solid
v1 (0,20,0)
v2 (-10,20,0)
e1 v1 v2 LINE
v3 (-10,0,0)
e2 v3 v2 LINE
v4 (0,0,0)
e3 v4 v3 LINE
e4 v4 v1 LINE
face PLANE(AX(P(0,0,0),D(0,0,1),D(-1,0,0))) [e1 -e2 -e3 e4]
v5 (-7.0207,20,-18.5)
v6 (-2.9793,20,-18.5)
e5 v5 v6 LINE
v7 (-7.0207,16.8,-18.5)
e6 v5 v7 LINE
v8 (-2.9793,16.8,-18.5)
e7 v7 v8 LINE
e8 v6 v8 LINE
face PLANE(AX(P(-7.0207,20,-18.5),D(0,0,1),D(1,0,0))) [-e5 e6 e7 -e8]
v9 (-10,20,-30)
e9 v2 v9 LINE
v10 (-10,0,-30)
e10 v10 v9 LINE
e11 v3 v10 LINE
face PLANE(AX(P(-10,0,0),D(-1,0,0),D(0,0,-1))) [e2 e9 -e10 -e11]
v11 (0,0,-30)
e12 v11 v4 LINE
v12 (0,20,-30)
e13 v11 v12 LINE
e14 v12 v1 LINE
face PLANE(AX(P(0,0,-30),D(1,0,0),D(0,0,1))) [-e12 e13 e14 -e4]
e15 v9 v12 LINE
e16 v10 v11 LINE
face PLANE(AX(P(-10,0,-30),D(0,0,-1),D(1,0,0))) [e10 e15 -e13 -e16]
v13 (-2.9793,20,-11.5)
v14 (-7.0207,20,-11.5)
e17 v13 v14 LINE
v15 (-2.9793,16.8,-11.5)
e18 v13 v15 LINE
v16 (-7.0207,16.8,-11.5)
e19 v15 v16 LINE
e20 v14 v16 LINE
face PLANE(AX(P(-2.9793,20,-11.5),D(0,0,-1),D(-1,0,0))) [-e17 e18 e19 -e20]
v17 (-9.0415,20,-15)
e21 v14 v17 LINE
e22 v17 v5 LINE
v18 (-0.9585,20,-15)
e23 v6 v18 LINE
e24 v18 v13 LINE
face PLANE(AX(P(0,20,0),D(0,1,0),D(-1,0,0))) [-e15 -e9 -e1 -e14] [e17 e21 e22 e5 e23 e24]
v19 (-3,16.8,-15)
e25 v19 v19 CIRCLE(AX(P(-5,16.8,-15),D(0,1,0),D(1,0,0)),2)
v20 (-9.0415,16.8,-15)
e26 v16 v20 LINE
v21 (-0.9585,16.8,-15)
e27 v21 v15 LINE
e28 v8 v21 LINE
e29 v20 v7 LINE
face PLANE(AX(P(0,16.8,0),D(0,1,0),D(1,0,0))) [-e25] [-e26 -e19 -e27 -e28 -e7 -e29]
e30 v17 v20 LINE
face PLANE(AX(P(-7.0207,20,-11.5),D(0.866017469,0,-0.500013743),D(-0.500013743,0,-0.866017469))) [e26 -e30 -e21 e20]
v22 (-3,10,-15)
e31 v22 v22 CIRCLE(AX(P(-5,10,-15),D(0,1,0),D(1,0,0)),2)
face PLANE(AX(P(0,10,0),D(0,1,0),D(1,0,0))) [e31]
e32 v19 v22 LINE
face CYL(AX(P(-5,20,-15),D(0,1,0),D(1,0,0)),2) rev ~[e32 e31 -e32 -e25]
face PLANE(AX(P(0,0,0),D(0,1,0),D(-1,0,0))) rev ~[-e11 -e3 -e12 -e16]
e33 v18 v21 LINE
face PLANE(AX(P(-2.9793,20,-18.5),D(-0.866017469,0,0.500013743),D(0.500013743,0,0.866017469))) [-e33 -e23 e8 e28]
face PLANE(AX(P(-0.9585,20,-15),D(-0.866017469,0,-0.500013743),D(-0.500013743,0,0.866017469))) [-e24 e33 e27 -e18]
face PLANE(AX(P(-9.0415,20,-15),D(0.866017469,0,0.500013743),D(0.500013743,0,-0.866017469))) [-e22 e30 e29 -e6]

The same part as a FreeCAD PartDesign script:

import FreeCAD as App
import Part
import Sketcher

V = App.Vector
Q = App.Units.Quantity


def add_polygon(sketch, points):
    """Adds a closed chain of lines whose ends are joined by coincident constraints."""
    first, n = sketch.GeometryCount, len(points)
    for a, b in zip(points, points[1:] + points[:1]):
        sketch.addGeometry(Part.LineSegment(App.Vector(*a, 0), App.Vector(*b, 0)), False)
    for i in range(n):
        sketch.addConstraint(Sketcher.Constraint("Coincident", first + i, 2, first + (i + 1) % n, 1))

doc = App.newDocument("Part")
params = doc.addObject("Spreadsheet::Sheet", "Params")
for row, (alias, value) in enumerate([
    ("sketch1_width", "10 mm"),
    ("sketch1_height", "30 mm"),
    ("pad1_length", "20 mm"),
    ("sketch2_diameter", "4 mm"),
    ("pocket1_length", "10 mm"),
    ("pocket2_length", "3.2 mm"),
], start=1):
    params.set(f"A{row}", alias)
    params.set(f"B{row}", "=" + value)
    params.setAlias(f"B{row}", alias)

body = doc.addObject("PartDesign::Body", "Body")

# Sketch on XZ plane
sketch1 = body.newObject("Sketcher::SketchObject", "Sketch")
sketch1.AttachmentSupport = (doc.getObject("XZ_Plane"), [""])
sketch1.MapMode = "FlatFace"
add_polygon(sketch1, [(-10, 0), (0, 0), (0, -30), (-10, -30)])  # lines 0-3
sketch1.addConstraint(Sketcher.Constraint("Horizontal", 0))
sketch1.addConstraint(Sketcher.Constraint("Vertical", 1))
sketch1.addConstraint(Sketcher.Constraint("Horizontal", 2))
sketch1.addConstraint(Sketcher.Constraint("Vertical", 3))
sketch1.addConstraint(Sketcher.Constraint("Coincident", 0, 2, -1, 1))
sketch1.addConstraint(Sketcher.Constraint("DistanceX", 0, 1, 0, 2, Q("10 mm")))
sketch1.addConstraint(Sketcher.Constraint("DistanceY", 1, 2, 1, 1, Q("30 mm")))
sketch1.setExpression("Constraints[9]", "Params.sketch1_width")
sketch1.setExpression("Constraints[10]", "Params.sketch1_height")
pad1 = body.newObject("PartDesign::Pad", "Pad")
pad1.Profile = sketch1
pad1.setExpression("Length", "Params.pad1_length")
pad1.Reversed = True

# Sketch on XZ plane
sketch2 = body.newObject("Sketcher::SketchObject", "Sketch001")
sketch2.AttachmentSupport = (doc.getObject("XZ_Plane"), [""])
sketch2.MapMode = "FlatFace"
sketch2.AttachmentOffset = App.Placement(V(0, 0, -20), App.Rotation())
sketch2.addGeometry(Part.Circle(V(-5, -15, 0), V(0, 0, 1), 2), False)
sketch2.addConstraint(Sketcher.Constraint("Diameter", 0, Q("4 mm")))
sketch2.addConstraint(Sketcher.Constraint("DistanceX", 0, 3, -1, 1, Q("5 mm")))
sketch2.addConstraint(Sketcher.Constraint("DistanceY", 0, 3, -1, 1, Q("15 mm")))
sketch2.setExpression("Constraints[0]", "Params.sketch2_diameter")
pocket1 = body.newObject("PartDesign::Pocket", "Pocket")
pocket1.Profile = sketch2
pocket1.setExpression("Length", "Params.pocket1_length")
pocket1.Reversed = True

# Sketch on XZ plane
sketch3 = body.newObject("Sketcher::SketchObject", "Sketch002")
sketch3.AttachmentSupport = (doc.getObject("XZ_Plane"), [""])
sketch3.MapMode = "FlatFace"
sketch3.AttachmentOffset = App.Placement(V(0, 0, -20), App.Rotation())
add_polygon(sketch3, [(-9, -15), (-7, -11.5), (-3, -11.5), (-1, -15), (-3, -18.5), (-7, -18.5)])  # lines 0-5
sketch3.addConstraint(Sketcher.Constraint("Horizontal", 1))
sketch3.addConstraint(Sketcher.Constraint("Horizontal", 4))
sketch3.addConstraint(Sketcher.Constraint("Parallel", 0, 3))
sketch3.addConstraint(Sketcher.Constraint("Parallel", 2, 5))
sketch3.addConstraint(Sketcher.Constraint("Horizontal", 2, 2, 5, 2))
sketch3.addConstraint(Sketcher.Constraint("Vertical", 1, 2, 3, 2))
sketch3.addConstraint(Sketcher.Constraint("Vertical", 0, 2, 4, 2))
sketch3.addConstraint(Sketcher.Constraint("DistanceY", 2, 2, 1, 2, Q("3.5 mm")))
sketch3.addConstraint(Sketcher.Constraint("Angle", 0, Q("59.999 deg")))
sketch3.addConstraint(Sketcher.Constraint("DistanceY", 2, 2, -1, 1, Q("15 mm")))
sketch3.addConstraint(Sketcher.Constraint("DistanceX", 1, 1, 1, 2, Q("4.0414 mm")))
sketch3.addConstraint(Sketcher.Constraint("DistanceX", 0, 2, -1, 1, Q("7.0207 mm")))
pocket2 = body.newObject("PartDesign::Pocket", "Pocket001")
pocket2.Profile = sketch3
pocket2.setExpression("Length", "Params.pocket2_length")
pocket2.Reversed = True

doc.recompute()
